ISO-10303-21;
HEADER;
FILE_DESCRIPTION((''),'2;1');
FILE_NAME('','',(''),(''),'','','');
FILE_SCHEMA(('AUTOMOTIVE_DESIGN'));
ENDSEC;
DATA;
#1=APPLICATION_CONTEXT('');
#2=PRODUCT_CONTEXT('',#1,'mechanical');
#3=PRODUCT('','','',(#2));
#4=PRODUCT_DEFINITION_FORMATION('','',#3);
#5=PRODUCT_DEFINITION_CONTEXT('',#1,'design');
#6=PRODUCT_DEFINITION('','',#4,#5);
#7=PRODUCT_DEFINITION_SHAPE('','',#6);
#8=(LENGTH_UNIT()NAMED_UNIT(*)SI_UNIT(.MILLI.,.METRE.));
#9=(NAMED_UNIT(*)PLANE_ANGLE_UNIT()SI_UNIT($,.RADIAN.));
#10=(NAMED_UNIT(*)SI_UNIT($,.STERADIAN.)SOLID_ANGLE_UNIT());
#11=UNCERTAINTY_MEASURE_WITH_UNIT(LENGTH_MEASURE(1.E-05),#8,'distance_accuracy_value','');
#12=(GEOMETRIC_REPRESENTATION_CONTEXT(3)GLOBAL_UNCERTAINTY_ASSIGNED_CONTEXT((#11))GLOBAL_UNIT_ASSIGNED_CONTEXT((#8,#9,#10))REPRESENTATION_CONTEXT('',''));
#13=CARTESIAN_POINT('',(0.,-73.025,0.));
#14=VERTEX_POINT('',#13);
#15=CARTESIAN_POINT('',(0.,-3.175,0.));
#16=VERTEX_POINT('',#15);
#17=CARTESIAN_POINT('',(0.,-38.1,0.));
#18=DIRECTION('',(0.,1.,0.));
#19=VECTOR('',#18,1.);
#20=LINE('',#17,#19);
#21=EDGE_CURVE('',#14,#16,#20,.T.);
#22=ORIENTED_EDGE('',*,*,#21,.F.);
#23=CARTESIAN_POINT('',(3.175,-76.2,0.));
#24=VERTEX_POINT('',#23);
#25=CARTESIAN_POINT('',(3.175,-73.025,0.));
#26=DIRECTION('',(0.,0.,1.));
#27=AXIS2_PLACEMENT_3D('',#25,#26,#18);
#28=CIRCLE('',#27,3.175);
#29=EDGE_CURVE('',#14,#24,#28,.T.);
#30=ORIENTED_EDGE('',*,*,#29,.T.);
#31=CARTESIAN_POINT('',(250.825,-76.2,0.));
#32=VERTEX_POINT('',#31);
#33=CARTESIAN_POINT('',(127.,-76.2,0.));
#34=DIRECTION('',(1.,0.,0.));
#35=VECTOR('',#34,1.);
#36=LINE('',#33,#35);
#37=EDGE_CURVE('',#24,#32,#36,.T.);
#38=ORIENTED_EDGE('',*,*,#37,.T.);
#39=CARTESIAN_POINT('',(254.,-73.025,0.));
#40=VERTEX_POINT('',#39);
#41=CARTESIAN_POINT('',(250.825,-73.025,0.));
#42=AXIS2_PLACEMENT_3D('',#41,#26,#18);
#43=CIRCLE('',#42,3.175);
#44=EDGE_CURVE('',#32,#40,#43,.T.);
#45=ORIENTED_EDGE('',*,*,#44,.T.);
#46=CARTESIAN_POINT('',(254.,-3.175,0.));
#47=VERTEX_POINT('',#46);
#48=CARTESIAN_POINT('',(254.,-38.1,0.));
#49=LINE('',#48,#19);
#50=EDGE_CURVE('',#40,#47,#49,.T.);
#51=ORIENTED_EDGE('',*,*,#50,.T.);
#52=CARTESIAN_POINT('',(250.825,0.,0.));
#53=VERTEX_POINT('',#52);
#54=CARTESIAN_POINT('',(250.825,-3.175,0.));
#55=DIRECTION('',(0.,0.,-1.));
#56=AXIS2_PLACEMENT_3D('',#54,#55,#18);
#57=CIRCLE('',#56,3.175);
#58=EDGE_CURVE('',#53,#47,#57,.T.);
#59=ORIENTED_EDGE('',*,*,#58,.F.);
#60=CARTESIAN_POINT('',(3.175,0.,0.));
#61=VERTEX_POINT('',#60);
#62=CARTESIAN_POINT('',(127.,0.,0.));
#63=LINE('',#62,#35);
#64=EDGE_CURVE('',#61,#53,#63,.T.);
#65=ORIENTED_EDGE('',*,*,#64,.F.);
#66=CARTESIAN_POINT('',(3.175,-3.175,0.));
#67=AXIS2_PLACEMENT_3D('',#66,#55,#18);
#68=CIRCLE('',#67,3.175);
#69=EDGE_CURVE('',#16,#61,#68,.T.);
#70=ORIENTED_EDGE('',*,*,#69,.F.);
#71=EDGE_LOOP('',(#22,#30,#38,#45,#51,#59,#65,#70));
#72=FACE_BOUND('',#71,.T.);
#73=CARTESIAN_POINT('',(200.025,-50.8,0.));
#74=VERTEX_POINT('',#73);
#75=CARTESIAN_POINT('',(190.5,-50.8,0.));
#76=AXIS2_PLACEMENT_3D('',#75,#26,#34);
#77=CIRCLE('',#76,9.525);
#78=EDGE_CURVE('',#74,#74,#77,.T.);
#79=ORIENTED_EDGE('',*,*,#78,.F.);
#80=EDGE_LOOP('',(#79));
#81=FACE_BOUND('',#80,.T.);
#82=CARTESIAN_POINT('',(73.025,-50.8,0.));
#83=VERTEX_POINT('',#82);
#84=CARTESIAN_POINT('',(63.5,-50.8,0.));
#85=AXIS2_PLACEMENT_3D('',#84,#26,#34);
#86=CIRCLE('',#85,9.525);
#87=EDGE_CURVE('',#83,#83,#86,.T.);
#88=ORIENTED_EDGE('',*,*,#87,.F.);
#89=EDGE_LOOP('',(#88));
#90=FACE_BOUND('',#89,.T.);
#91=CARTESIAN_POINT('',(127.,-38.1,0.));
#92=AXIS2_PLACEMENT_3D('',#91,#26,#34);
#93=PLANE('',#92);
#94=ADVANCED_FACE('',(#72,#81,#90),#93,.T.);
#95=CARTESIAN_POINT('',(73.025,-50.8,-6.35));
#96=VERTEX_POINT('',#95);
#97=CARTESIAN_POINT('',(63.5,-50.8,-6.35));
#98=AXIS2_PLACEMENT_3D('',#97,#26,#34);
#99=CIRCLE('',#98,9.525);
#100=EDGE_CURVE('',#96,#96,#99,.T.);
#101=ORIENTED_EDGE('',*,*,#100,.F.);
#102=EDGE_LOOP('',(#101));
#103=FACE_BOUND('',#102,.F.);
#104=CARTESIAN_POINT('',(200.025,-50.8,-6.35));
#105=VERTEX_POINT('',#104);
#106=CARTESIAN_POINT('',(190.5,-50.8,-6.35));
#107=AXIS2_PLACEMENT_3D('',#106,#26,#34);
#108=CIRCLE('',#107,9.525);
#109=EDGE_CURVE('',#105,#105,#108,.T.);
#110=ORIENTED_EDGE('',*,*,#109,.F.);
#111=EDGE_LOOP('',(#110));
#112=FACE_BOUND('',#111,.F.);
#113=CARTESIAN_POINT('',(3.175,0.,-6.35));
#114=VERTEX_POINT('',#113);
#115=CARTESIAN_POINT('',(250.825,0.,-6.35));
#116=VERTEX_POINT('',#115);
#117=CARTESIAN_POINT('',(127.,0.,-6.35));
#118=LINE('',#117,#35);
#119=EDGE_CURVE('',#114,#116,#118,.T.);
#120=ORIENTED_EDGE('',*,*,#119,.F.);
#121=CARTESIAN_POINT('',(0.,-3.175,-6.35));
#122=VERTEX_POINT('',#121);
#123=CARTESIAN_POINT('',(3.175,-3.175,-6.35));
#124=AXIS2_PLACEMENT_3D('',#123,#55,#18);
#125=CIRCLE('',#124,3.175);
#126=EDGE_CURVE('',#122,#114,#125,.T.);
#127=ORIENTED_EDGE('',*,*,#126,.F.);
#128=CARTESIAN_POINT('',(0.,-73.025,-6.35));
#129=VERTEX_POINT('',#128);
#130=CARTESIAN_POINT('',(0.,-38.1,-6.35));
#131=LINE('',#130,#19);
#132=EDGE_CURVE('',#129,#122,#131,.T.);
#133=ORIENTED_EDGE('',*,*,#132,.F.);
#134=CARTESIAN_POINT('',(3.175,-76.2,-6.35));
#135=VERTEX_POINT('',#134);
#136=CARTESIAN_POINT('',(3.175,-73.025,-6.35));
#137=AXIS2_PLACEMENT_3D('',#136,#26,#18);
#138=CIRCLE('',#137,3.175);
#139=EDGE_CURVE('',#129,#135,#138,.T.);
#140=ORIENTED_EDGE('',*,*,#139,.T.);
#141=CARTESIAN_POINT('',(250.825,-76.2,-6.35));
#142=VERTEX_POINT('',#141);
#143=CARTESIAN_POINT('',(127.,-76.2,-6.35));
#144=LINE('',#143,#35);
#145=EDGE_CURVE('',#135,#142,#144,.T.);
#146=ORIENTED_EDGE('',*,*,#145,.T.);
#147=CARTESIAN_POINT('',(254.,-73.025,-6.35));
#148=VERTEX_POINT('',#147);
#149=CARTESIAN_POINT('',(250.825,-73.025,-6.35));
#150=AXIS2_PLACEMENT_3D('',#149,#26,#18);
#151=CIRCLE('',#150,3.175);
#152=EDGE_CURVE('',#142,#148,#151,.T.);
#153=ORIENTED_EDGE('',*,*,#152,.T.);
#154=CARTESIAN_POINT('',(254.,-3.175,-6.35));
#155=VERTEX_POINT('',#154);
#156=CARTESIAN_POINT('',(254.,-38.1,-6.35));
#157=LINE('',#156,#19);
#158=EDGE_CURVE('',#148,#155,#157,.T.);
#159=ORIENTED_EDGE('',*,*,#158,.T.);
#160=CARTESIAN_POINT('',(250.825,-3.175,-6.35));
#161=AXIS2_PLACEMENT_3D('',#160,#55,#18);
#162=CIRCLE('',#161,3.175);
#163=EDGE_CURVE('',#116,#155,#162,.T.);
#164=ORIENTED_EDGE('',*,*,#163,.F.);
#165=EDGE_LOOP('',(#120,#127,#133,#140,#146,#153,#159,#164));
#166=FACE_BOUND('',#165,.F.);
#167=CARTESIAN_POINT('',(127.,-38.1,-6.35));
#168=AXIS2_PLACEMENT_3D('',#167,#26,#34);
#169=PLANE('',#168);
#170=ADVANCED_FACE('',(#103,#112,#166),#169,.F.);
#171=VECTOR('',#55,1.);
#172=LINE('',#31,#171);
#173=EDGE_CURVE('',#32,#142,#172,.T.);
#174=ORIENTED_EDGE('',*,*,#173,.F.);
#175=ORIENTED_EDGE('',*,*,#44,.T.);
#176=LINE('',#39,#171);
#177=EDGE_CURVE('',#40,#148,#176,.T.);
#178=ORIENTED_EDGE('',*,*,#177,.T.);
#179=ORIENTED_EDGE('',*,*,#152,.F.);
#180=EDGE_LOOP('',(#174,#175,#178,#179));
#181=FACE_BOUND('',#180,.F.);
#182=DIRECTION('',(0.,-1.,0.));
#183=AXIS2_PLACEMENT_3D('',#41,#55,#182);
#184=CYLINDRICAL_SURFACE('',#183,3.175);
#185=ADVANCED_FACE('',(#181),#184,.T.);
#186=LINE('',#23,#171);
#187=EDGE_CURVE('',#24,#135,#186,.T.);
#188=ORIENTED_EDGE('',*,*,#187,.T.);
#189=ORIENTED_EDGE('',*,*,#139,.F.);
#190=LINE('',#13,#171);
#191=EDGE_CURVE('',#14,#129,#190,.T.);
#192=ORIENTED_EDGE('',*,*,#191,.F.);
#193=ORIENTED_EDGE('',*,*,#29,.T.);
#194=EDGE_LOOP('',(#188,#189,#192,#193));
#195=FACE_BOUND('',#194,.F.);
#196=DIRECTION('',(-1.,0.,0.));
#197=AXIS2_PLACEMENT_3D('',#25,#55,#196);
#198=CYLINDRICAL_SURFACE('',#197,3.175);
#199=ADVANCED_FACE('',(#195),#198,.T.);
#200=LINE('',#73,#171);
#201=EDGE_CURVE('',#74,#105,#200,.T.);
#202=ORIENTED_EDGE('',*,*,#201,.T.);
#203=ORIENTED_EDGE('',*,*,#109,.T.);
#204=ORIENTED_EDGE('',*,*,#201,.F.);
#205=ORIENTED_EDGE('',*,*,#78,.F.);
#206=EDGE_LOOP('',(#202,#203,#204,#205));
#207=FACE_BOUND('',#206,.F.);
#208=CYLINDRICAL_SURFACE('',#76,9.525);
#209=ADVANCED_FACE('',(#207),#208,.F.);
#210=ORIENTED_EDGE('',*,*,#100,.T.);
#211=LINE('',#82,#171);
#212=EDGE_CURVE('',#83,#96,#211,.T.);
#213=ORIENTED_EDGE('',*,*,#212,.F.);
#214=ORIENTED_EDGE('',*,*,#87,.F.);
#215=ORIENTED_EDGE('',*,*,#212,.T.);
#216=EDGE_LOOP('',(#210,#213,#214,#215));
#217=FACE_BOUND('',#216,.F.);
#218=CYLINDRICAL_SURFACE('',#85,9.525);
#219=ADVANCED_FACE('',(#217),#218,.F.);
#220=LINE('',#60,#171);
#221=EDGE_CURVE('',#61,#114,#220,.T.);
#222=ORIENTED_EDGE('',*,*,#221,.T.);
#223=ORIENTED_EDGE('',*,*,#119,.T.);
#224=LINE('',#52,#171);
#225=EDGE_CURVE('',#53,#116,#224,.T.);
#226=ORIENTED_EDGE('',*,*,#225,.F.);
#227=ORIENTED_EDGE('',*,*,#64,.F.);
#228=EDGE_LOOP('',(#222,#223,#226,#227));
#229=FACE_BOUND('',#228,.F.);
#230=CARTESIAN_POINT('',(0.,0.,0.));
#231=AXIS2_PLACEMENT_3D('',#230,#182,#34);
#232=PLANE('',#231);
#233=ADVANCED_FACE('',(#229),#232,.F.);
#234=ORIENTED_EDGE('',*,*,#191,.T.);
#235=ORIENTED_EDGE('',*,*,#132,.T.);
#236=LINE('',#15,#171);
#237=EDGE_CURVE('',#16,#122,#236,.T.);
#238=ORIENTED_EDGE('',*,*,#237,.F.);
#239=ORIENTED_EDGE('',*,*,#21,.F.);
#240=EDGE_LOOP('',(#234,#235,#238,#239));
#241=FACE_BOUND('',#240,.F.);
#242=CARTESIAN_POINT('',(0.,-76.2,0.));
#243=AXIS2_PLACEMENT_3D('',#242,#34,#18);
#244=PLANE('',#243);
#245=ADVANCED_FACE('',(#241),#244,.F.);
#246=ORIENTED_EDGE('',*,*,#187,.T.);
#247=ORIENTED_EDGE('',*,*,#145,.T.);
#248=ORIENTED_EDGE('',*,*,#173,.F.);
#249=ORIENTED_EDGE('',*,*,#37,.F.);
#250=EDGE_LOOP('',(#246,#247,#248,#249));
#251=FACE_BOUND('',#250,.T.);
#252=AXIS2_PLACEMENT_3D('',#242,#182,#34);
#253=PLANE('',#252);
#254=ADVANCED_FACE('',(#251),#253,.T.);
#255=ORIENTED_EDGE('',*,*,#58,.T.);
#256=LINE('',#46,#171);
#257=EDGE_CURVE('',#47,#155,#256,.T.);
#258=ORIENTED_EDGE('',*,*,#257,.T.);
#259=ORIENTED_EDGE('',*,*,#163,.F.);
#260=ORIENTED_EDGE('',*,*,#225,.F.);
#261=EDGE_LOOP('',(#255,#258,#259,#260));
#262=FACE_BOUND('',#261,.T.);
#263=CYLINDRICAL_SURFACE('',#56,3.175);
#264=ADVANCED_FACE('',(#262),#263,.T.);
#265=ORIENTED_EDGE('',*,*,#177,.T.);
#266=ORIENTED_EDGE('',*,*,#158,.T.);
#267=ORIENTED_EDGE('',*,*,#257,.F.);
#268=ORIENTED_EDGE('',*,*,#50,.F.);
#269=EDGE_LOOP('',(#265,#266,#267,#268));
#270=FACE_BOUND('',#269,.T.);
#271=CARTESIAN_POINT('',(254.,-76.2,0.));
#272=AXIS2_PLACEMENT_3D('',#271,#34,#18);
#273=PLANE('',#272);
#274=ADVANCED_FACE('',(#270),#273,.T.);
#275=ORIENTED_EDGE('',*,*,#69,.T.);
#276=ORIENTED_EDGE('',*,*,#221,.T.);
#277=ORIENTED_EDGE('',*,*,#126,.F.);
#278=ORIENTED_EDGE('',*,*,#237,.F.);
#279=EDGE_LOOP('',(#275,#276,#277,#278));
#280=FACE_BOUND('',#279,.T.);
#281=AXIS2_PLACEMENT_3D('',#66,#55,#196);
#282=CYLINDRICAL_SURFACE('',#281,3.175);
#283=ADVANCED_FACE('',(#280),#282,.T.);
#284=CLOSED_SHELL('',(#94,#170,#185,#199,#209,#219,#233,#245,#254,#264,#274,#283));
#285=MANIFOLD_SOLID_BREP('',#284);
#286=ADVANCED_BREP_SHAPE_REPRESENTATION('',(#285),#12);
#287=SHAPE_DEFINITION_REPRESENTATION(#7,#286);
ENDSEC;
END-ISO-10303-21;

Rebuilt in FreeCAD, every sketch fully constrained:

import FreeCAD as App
import Part
import Sketcher
Q = App.Units.Quantity


def edges_at(feature, points):
    """Names of the edges that pass closest to the given points."""
    edges = feature.Shape.Edges
    near = lambda p: min(range(len(edges)), key=lambda i: edges[i].distToShape(Part.Vertex(*p))[0])
    return sorted({f"Edge{near(p) + 1}" for p in points})

doc = App.newDocument("Part")
body = doc.addObject("PartDesign::Body", "Body")

# Sketch on XY plane
sketch1 = body.newObject("Sketcher::SketchObject", "Sketch")
sketch1.AttachmentSupport = (doc.getObject("XY_Plane"), [""])
sketch1.MapMode = "FlatFace"
sketch1.addGeometry(Part.LineSegment(App.Vector(0, 0, 0), App.Vector(0, -76.2, 0)), False)
sketch1.addGeometry(Part.LineSegment(App.Vector(0, -76.2, 0), App.Vector(254, -76.2, 0)), False)
sketch1.addGeometry(Part.LineSegment(App.Vector(254, -76.2, 0), App.Vector(254, 0, 0)), False)
sketch1.addGeometry(Part.LineSegment(App.Vector(254, 0, 0), App.Vector(0, 0, 0)), False)
sketch1.addConstraint(Sketcher.Constraint("Coincident", 0, 2, 1, 1))
sketch1.addConstraint(Sketcher.Constraint("Coincident", 1, 2, 2, 1))
sketch1.addConstraint(Sketcher.Constraint("Coincident", 2, 2, 3, 1))
sketch1.addConstraint(Sketcher.Constraint("Coincident", 3, 2, 0, 1))
sketch1.addConstraint(Sketcher.Constraint("Vertical", 0))
sketch1.addConstraint(Sketcher.Constraint("Horizontal", 1))
sketch1.addConstraint(Sketcher.Constraint("Vertical", 2))
sketch1.addConstraint(Sketcher.Constraint("Horizontal", 3))
sketch1.addConstraint(Sketcher.Constraint("Coincident", 3, 2, -1, 1))
sketch1.addConstraint(Sketcher.Constraint("DistanceX", 1, 1, 1, 2, Q("10 in")))
sketch1.addConstraint(Sketcher.Constraint("DistanceY", 0, 2, 0, 1, Q("3 in")))
pad1 = body.newObject("PartDesign::Pad", "Pad")
pad1.Profile = sketch1
pad1.Length = Q("0.25 in")
pad1.Reversed = True

# Sketch on XY plane
sketch2 = body.newObject("Sketcher::SketchObject", "Sketch001")
sketch2.AttachmentSupport = (doc.getObject("XY_Plane"), [""])
sketch2.MapMode = "FlatFace"
sketch2.addGeometry(Part.Circle(App.Vector(63.5, -50.8, 0), App.Vector(0, 0, 1), 9.525), False)
sketch2.addGeometry(Part.Circle(App.Vector(190.5, -50.8, 0), App.Vector(0, 0, 1), 9.525), False)
sketch2.addConstraint(Sketcher.Constraint("Equal", 0, 1))
sketch2.addConstraint(Sketcher.Constraint("Horizontal", 0, 3, 1, 3))
sketch2.addConstraint(Sketcher.Constraint("Diameter", 0, Q("0.75 in")))
sketch2.addConstraint(Sketcher.Constraint("DistanceY", 0, 3, -1, 1, Q("2 in")))
sketch2.addConstraint(Sketcher.Constraint("DistanceX", 0, 3, 1, 3, Q("5 in")))
sketch2.addConstraint(Sketcher.Constraint("DistanceX", -1, 1, 0, 3, Q("2.5 in")))
pocket1 = body.newObject("PartDesign::Pocket", "Pocket")
pocket1.Profile = sketch2
pocket1.Length = Q("1 in")
doc.recompute()

fillet = body.newObject("PartDesign::Fillet", "Fillet")
fillet.Base = (pocket1, edges_at(pocket1, [
    (254, -76.2, -3.175),
    (254, 0, -3.175),
    (0, -76.2, -3.175),
    (0, 0, -3.175),
]))
fillet.Radius = Q("0.125 in")

doc.recompute()
